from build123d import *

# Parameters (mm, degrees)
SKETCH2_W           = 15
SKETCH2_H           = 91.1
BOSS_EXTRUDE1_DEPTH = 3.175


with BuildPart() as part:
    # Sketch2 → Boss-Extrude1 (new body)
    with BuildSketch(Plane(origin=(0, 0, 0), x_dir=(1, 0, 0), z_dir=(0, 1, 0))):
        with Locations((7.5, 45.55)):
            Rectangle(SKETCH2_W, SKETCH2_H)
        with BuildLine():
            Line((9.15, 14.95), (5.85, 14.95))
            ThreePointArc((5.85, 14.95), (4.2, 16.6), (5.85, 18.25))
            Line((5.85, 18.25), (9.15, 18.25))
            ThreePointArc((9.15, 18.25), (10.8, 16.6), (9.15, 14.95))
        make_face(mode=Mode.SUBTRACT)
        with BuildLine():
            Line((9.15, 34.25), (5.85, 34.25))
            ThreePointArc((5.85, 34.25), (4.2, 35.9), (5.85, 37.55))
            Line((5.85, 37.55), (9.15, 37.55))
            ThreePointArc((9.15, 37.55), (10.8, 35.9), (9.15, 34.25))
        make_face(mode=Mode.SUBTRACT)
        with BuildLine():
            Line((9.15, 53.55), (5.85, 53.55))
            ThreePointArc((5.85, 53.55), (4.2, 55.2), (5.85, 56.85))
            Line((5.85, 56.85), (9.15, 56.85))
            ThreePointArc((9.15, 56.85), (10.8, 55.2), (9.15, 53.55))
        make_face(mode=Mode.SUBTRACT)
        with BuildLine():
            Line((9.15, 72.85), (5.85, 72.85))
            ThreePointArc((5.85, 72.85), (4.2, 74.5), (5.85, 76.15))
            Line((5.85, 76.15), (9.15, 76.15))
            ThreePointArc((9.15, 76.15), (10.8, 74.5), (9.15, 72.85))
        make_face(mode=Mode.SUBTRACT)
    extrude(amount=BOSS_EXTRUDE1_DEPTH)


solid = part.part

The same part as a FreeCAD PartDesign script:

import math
import FreeCAD as App
import Part
import Sketcher


def add_polygon(sketch, points):
    """Adds a closed chain of lines whose ends are joined by coincident constraints."""
    first, n = sketch.GeometryCount, len(points)
    for a, b in zip(points, points[1:] + points[:1]):
        sketch.addGeometry(Part.LineSegment(App.Vector(*a, 0), App.Vector(*b, 0)), False)
    for i in range(n):
        sketch.addConstraint(Sketcher.Constraint("Coincident", first + i, 2, first + (i + 1) % n, 1))

doc = App.newDocument("Part")
body = doc.addObject("PartDesign::Body", "Body")

# Sketch on XZ plane
sketch1 = body.newObject("Sketcher::SketchObject", "Sketch")
sketch1.AttachmentSupport = (doc.getObject("XZ_Plane"), [""])
sketch1.MapMode = "FlatFace"
add_polygon(sketch1, [(0, -91.1), (0, 0), (15, 0), (15, -91.1)])  # lines 0-3
sketch1.addGeometry(Part.ArcOfCircle(Part.Circle(App.Vector(9.2, -16.6, 0), App.Vector(0, 0, 1), 1.6), math.radians(-90), math.radians(90)), False)  # 4
sketch1.addGeometry(Part.LineSegment(App.Vector(9.2, -14.9, 0), App.Vector(5.8, -14.9, 0)), False)  # 5
sketch1.addGeometry(Part.ArcOfCircle(Part.Circle(App.Vector(5.8, -16.6, 0), App.Vector(0, 0, 1), 1.6), math.radians(90), math.radians(270)), False)  # 6
sketch1.addGeometry(Part.LineSegment(App.Vector(5.8, -18.2, 0), App.Vector(9.2, -18.2, 0)), False)  # 7
sketch1.addGeometry(Part.ArcOfCircle(Part.Circle(App.Vector(9.2, -35.9, 0), App.Vector(0, 0, 1), 1.6), math.radians(-90), math.radians(90)), False)  # 8
sketch1.addGeometry(Part.LineSegment(App.Vector(9.2, -34.2, 0), App.Vector(5.8, -34.2, 0)), False)  # 9
sketch1.addGeometry(Part.ArcOfCircle(Part.Circle(App.Vector(5.8, -35.9, 0), App.Vector(0, 0, 1), 1.6), math.radians(90), math.radians(270)), False)  # 10
sketch1.addGeometry(Part.LineSegment(App.Vector(5.8, -37.5, 0), App.Vector(9.2, -37.5, 0)), False)  # 11
sketch1.addGeometry(Part.ArcOfCircle(Part.Circle(App.Vector(9.2, -55.2, 0), App.Vector(0, 0, 1), 1.6), math.radians(-90), math.radians(90)), False)  # 12
sketch1.addGeometry(Part.LineSegment(App.Vector(9.2, -53.5, 0), App.Vector(5.8, -53.5, 0)), False)  # 13
sketch1.addGeometry(Part.ArcOfCircle(Part.Circle(App.Vector(5.8, -55.2, 0), App.Vector(0, 0, 1), 1.6), math.radians(90), math.radians(270)), False)  # 14
sketch1.addGeometry(Part.LineSegment(App.Vector(5.8, -56.9, 0), App.Vector(9.2, -56.9, 0)), False)  # 15
sketch1.addGeometry(Part.ArcOfCircle(Part.Circle(App.Vector(9.2, -74.5, 0), App.Vector(0, 0, 1), 1.6), math.radians(-90), math.radians(90)), False)  # 16
sketch1.addGeometry(Part.LineSegment(App.Vector(9.2, -72.8, 0), App.Vector(5.8, -72.8, 0)), False)  # 17
sketch1.addGeometry(Part.ArcOfCircle(Part.Circle(App.Vector(5.8, -74.5, 0), App.Vector(0, 0, 1), 1.6), math.radians(90), math.radians(270)), False)  # 18
sketch1.addGeometry(Part.LineSegment(App.Vector(5.8, -76.2, 0), App.Vector(9.2, -76.2, 0)), False)  # 19
sketch1.addConstraint([
    Sketcher.Constraint("Tangent", 4, 2, 5, 1),
    Sketcher.Constraint("Tangent", 5, 2, 6, 1),
    Sketcher.Constraint("Tangent", 6, 2, 7, 1),
    Sketcher.Constraint("Tangent", 7, 2, 4, 1),
    Sketcher.Constraint("Tangent", 8, 2, 9, 1),
    Sketcher.Constraint("Tangent", 9, 2, 10, 1),
    Sketcher.Constraint("Tangent", 10, 2, 11, 1),
    Sketcher.Constraint("Tangent", 11, 2, 8, 1),
    Sketcher.Constraint("Tangent", 12, 2, 13, 1),
    Sketcher.Constraint("Tangent", 13, 2, 14, 1),
    Sketcher.Constraint("Tangent", 14, 2, 15, 1),
    Sketcher.Constraint("Tangent", 15, 2, 12, 1),
    Sketcher.Constraint("Tangent", 16, 2, 17, 1),
    Sketcher.Constraint("Tangent", 17, 2, 18, 1),
    Sketcher.Constraint("Tangent", 18, 2, 19, 1),
    Sketcher.Constraint("Tangent", 19, 2, 16, 1),
    Sketcher.Constraint("Vertical", 0),
    Sketcher.Constraint("Horizontal", 1),
    Sketcher.Constraint("Vertical", 2),
    Sketcher.Constraint("Horizontal", 3),
    Sketcher.Constraint("Horizontal", 5),
    Sketcher.Constraint("Horizontal", 7),
    Sketcher.Constraint("Horizontal", 9),
    Sketcher.Constraint("Horizontal", 11),
    Sketcher.Constraint("Horizontal", 13),
    Sketcher.Constraint("Horizontal", 15),
    Sketcher.Constraint("Horizontal", 17),
    Sketcher.Constraint("Horizontal", 19),
    Sketcher.Constraint("Coincident", 0, 2, -1, 1),
    Sketcher.Constraint("Equal", 6, 8),
    Sketcher.Constraint("Equal", 10, 12),
    Sketcher.Constraint("Equal", 14, 16),
    Sketcher.Constraint("Vertical", 4, 3, 8, 3),
    Sketcher.Constraint("Vertical", 6, 3, 10, 3),
    Sketcher.Constraint("Vertical", 8, 3, 12, 3),
    Sketcher.Constraint("Vertical", 10, 3, 14, 3),
    Sketcher.Constraint("Vertical", 12, 3, 16, 3),
    Sketcher.Constraint("Vertical", 14, 3, 18, 3),
    Sketcher.Constraint("DistanceX", 1, 1, 1, 2, 15.0),
    Sketcher.Constraint("Radius", 4, 1.65),
    Sketcher.Constraint("DistanceX", 5, 2, 5, 1, 3.3),
    Sketcher.Constraint("DistanceY", 0, 1, 0, 2, 91.1),
    Sketcher.Constraint("DistanceY", 8, 2, 7, 2, 16.0),
    Sketcher.Constraint("DistanceY", 12, 2, 11, 2, 16.0),
    Sketcher.Constraint("DistanceY", 16, 2, 15, 2, 16.0),
    Sketcher.Constraint("DistanceY", 4, 3, -1, 1, 16.6),
    Sketcher.Constraint("DistanceX", -1, 1, 4, 3, 9.15),
])
pad1 = body.newObject("PartDesign::Pad", "Pad")
pad1.Profile = sketch1
pad1.Length = 3.175
pad1.Reversed = True

doc.recompute()
